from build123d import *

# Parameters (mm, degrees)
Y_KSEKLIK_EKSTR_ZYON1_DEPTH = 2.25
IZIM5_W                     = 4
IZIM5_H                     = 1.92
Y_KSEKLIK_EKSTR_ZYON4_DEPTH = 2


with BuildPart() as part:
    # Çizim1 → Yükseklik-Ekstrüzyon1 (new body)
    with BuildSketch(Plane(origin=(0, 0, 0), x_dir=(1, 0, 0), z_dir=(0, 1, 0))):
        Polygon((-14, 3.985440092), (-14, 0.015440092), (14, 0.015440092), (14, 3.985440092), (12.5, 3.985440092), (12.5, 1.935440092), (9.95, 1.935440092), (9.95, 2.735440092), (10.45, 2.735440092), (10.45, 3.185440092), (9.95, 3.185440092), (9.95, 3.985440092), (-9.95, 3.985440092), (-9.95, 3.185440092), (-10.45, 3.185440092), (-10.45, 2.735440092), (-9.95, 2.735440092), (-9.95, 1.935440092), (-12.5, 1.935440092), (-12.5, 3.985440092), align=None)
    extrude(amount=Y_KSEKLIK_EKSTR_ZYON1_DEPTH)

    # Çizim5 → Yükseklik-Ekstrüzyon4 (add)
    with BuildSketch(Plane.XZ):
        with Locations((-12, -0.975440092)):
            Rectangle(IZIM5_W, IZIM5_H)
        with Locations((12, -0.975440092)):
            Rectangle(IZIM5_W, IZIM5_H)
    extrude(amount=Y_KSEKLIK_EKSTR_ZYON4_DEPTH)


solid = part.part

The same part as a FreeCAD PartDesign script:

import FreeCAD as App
import Part
import Sketcher
Q = App.Units.Quantity


def add_polygon(sketch, points):
    """Adds a closed chain of lines whose ends are joined by coincident constraints."""
    first, n = sketch.GeometryCount, len(points)
    for a, b in zip(points, points[1:] + points[:1]):
        sketch.addGeometry(Part.LineSegment(App.Vector(*a, 0), App.Vector(*b, 0)), False)
    for i in range(n):
        sketch.addConstraint(Sketcher.Constraint("Coincident", first + i, 2, first + (i + 1) % n, 1))

doc = App.newDocument("Part")
body = doc.addObject("PartDesign::Body", "Body")

# Sketch on XZ plane
sketch1 = body.newObject("Sketcher::SketchObject", "Sketch")
sketch1.AttachmentSupport = (doc.getObject("XZ_Plane"), [""])
sketch1.MapMode = "FlatFace"
add_polygon(sketch1, [(-14, -3.99), (-14, -0.02), (14, -0.02), (14, -3.99), (12.5, -3.99), (12.5, -1.94), (9.95, -1.94), (9.95, -2.74), (10.45, -2.74), (10.45, -3.19), (9.95, -3.19), (9.95, -3.99), (-9.95, -3.99), (-9.95, -3.19), (-10.45, -3.19), (-10.45, -2.74), (-9.95, -2.74), (-9.95, -1.94), (-12.5, -1.94), (-12.5, -3.99)])  # lines 0-19
sketch1.addConstraint([
    Sketcher.Constraint("Vertical", 0),
    Sketcher.Constraint("Horizontal", 1),
    Sketcher.Constraint("Vertical", 2),
    Sketcher.Constraint("Horizontal", 3),
    Sketcher.Constraint("Vertical", 4),
    Sketcher.Constraint("Horizontal", 5),
    Sketcher.Constraint("Vertical", 6),
    Sketcher.Constraint("Horizontal", 7),
    Sketcher.Constraint("Vertical", 8),
    Sketcher.Constraint("Horizontal", 9),
    Sketcher.Constraint("Vertical", 10),
    Sketcher.Constraint("Horizontal", 11),
    Sketcher.Constraint("Vertical", 12),
    Sketcher.Constraint("Horizontal", 13),
    Sketcher.Constraint("Vertical", 14),
    Sketcher.Constraint("Horizontal", 15),
    Sketcher.Constraint("Vertical", 16),
    Sketcher.Constraint("Horizontal", 17),
    Sketcher.Constraint("Vertical", 18),
    Sketcher.Constraint("Horizontal", 19),
    Sketcher.Constraint("Symmetric", 9, 2, 12, 2, -2),
    Sketcher.Constraint("Symmetric", 7, 2, 14, 2, -2),
    Sketcher.Constraint("Symmetric", 5, 2, 16, 2, -2),
    Sketcher.Constraint("Symmetric", 3, 2, 18, 2, -2),
    Sketcher.Constraint("Horizontal", 3, 2, 10, 2),
    Sketcher.Constraint("Vertical", 6, 2, 9, 2),
    Sketcher.Constraint("Equal", 3, 19),
    Sketcher.Constraint("Equal", 6, 10),
    Sketcher.Constraint("DistanceX", 1, 1, 1, 2, Q("28 mm")),
    Sketcher.Constraint("DistanceX", 3, 2, 3, 1, Q("1.5 mm")),
    Sketcher.Constraint("DistanceX", 7, 1, 7, 2, Q("0.5 mm")),
    Sketcher.Constraint("DistanceX", 11, 2, 11, 1, Q("19.9 mm")),
    Sketcher.Constraint("DistanceY", 6, 2, 6, 1, Q("0.8 mm")),
    Sketcher.Constraint("DistanceY", 0, 1, 0, 2, Q("3.97 mm")),
    Sketcher.Constraint("DistanceY", 4, 1, 4, 2, Q("2.05 mm")),
    Sketcher.Constraint("DistanceY", 0, 2, -1, 1, Q("0.01544 mm")),
])
pad1 = body.newObject("PartDesign::Pad", "Pad")
pad1.Profile = sketch1
pad1.Length = 2.25
pad1.Reversed = True

# Sketch on XZ plane
sketch2 = body.newObject("Sketcher::SketchObject", "Sketch001")
sketch2.AttachmentSupport = (doc.getObject("XZ_Plane"), [""])
sketch2.MapMode = "FlatFace"
add_polygon(sketch2, [(-14, 0), (-14, -1.9), (-10, -1.9), (-10, 0)])  # lines 0-3
add_polygon(sketch2, [(10, 0), (10, -1.9), (14, -1.9), (14, 0)])  # lines 4-7
sketch2.addConstraint([
    Sketcher.Constraint("Vertical", 0),
    Sketcher.Constraint("Horizontal", 1),
    Sketcher.Constraint("Vertical", 2),
    Sketcher.Constraint("Horizontal", 3),
    Sketcher.Constraint("Vertical", 4),
    Sketcher.Constraint("Horizontal", 5),
    Sketcher.Constraint("Vertical", 6),
    Sketcher.Constraint("Horizontal", 7),
    Sketcher.Constraint("Symmetric", 1, 2, 4, 2, -2),
    Sketcher.Constraint("Symmetric", 3, 2, 6, 2, -2),
    Sketcher.Constraint("DistanceX", 1, 1, 1, 2, Q("4 mm")),
    Sketcher.Constraint("DistanceX", 0, 2, -1, 1, Q("14 mm")),
    Sketcher.Constraint("DistanceY", 0, 2, 0, 1, Q("1.92 mm")),
    Sketcher.Constraint("DistanceY", 0, 2, -1, 1, Q("1.93544 mm")),
])
pad2 = body.newObject("PartDesign::Pad", "Pad001")
pad2.Profile = sketch2
pad2.Length = 2

doc.recompute()
